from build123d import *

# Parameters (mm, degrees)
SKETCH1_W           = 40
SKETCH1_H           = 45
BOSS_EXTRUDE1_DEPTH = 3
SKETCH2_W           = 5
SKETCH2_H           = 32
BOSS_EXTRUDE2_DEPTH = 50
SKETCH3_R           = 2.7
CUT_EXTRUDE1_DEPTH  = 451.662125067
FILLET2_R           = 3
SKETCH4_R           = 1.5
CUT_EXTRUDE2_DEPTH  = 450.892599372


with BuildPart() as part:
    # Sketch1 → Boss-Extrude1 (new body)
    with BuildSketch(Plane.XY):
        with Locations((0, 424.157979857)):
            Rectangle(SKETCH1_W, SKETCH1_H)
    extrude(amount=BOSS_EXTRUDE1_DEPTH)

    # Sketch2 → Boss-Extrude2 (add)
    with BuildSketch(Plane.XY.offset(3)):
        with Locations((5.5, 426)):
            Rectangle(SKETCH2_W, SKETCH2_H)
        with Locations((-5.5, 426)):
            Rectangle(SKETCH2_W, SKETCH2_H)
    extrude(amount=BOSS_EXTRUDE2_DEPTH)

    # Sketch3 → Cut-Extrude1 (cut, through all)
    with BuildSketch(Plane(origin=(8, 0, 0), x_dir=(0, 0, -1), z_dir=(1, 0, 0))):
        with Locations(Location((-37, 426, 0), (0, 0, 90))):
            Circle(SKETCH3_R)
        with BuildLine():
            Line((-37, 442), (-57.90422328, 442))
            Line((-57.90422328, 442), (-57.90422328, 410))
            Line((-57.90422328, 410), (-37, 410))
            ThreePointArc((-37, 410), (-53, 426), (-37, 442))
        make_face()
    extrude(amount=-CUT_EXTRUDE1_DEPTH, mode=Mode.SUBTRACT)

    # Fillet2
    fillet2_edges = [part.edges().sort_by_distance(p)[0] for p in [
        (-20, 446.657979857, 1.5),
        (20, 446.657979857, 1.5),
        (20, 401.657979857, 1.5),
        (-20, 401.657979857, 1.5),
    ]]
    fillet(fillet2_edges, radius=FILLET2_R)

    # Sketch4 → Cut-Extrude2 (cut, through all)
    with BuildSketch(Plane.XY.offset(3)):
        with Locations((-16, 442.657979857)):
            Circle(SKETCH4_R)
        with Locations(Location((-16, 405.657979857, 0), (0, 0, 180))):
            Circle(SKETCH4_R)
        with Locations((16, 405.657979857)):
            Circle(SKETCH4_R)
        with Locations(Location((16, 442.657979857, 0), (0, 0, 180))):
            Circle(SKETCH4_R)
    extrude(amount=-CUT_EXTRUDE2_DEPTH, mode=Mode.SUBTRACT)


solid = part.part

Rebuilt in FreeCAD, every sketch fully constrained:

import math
import FreeCAD as App
import Part
import Sketcher
from FreeCAD import Vector


def edges_at(feature, points):
    """Names of the edges that pass closest to the given points."""
    edges = feature.Shape.Edges
    near = lambda p: min(range(len(edges)), key=lambda i: edges[i].distToShape(Part.Vertex(*p))[0])
    return sorted({f"Edge{near(p) + 1}" for p in points})


def add_polygon(sketch, points):
    """Adds a closed chain of lines whose ends are joined by coincident constraints."""
    first, n = sketch.GeometryCount, len(points)
    for a, b in zip(points, points[1:] + points[:1]):
        sketch.addGeometry(Part.LineSegment(App.Vector(*a, 0), App.Vector(*b, 0)), False)
    for i in range(n):
        sketch.addConstraint(Sketcher.Constraint("Coincident", first + i, 2, first + (i + 1) % n, 1))

doc = App.newDocument("Part")
body = doc.addObject("PartDesign::Body", "Body")

# Sketch on XY plane
sketch1 = body.newObject("Sketcher::SketchObject", "Sketch")
sketch1.AttachmentSupport = (doc.getObject("XY_Plane"), [""])
sketch1.MapMode = "FlatFace"
add_polygon(sketch1, [(-20, 447), (-20, 402), (20, 402), (20, 447)])  # lines 0-3
sketch1.addConstraint(Sketcher.Constraint("Vertical", 0))
sketch1.addConstraint(Sketcher.Constraint("Horizontal", 1))
sketch1.addConstraint(Sketcher.Constraint("Vertical", 2))
sketch1.addConstraint(Sketcher.Constraint("Horizontal", 3))
sketch1.addConstraint(Sketcher.Constraint("DistanceX", 1, 1, 1, 2, 40.0))
sketch1.addConstraint(Sketcher.Constraint("DistanceY", 0, 2, 0, 1, 45.0))
sketch1.addConstraint(Sketcher.Constraint("DistanceX", 0, 2, -1, 1, 20.0))
sketch1.addConstraint(Sketcher.Constraint("DistanceY", -1, 1, 0, 2, 401.65798))
pad1 = body.newObject("PartDesign::Pad", "Pad")
pad1.Profile = sketch1
pad1.Length = 3

# Sketch on XY plane
sketch2 = body.newObject("Sketcher::SketchObject", "Sketch001")
sketch2.AttachmentSupport = (doc.getObject("XY_Plane"), [""])
sketch2.MapMode = "FlatFace"
sketch2.AttachmentOffset = App.Placement(Vector(0, 0, 3), App.Rotation())
add_polygon(sketch2, [(3, 442), (3, 410), (8, 410), (8, 442)])  # lines 0-3
add_polygon(sketch2, [(-8, 442), (-8, 410), (-3, 410), (-3, 442)])  # lines 4-7
sketch2.addConstraint(Sketcher.Constraint("Vertical", 0))
sketch2.addConstraint(Sketcher.Constraint("Horizontal", 1))
sketch2.addConstraint(Sketcher.Constraint("Vertical", 2))
sketch2.addConstraint(Sketcher.Constraint("Horizontal", 3))
sketch2.addConstraint(Sketcher.Constraint("Vertical", 4))
sketch2.addConstraint(Sketcher.Constraint("Horizontal", 5))
sketch2.addConstraint(Sketcher.Constraint("Vertical", 6))
sketch2.addConstraint(Sketcher.Constraint("Horizontal", 7))
sketch2.addConstraint(Sketcher.Constraint("Symmetric", 1, 2, 4, 2, -2))
sketch2.addConstraint(Sketcher.Constraint("Symmetric", 3, 2, 6, 2, -2))
sketch2.addConstraint(Sketcher.Constraint("DistanceX", 1, 1, 1, 2, 5.0))
sketch2.addConstraint(Sketcher.Constraint("DistanceY", 0, 2, 0, 1, 32.0))
sketch2.addConstraint(Sketcher.Constraint("DistanceX", -1, 1, 0, 2, 3.0))
sketch2.addConstraint(Sketcher.Constraint("DistanceY", -1, 1, 0, 2, 410.0))
pad2 = body.newObject("PartDesign::Pad", "Pad001")
pad2.Profile = sketch2
pad2.Length = 50

# Sketch on YZ plane
sketch3 = body.newObject("Sketcher::SketchObject", "Sketch002")
sketch3.AttachmentSupport = (doc.getObject("YZ_Plane"), [""])
sketch3.MapMode = "FlatFace"
sketch3.AttachmentOffset = App.Placement(Vector(0, 0, 8), App.Rotation())
sketch3.addGeometry(Part.Circle(Vector(426, 37, 0), Vector(0, 0, 1), 2.7), False)
sketch3.addGeometry(Part.LineSegment(Vector(442, 37, 0), Vector(442, 57.9, 0)), False)
sketch3.addGeometry(Part.LineSegment(Vector(442, 57.9, 0), Vector(410, 57.9, 0)), False)
sketch3.addGeometry(Part.LineSegment(Vector(410, 57.9, 0), Vector(410, 37, 0)), False)
sketch3.addGeometry(Part.ArcOfCircle(Part.Circle(Vector(426, 37, 0), Vector(0, 0, 1), 16), math.radians(0), math.radians(180)), False)
sketch3.addConstraint(Sketcher.Constraint("Coincident", 1, 2, 2, 1))
sketch3.addConstraint(Sketcher.Constraint("Coincident", 2, 2, 3, 1))
sketch3.addConstraint(Sketcher.Constraint("Tangent", 3, 2, 4, 2))
sketch3.addConstraint(Sketcher.Constraint("Tangent", 4, 1, 1, 1))
sketch3.addConstraint(Sketcher.Constraint("Vertical", 1))
sketch3.addConstraint(Sketcher.Constraint("Horizontal", 2))
sketch3.addConstraint(Sketcher.Constraint("Vertical", 3))
sketch3.addConstraint(Sketcher.Constraint("Coincident", 4, 3, 0, 3))
sketch3.addConstraint(Sketcher.Constraint("Radius", 4, 16.0))
sketch3.addConstraint(Sketcher.Constraint("Diameter", 0, 5.4))
sketch3.addConstraint(Sketcher.Constraint("DistanceX", -1, 1, 0, 3, 426.0))
sketch3.addConstraint(Sketcher.Constraint("DistanceY", -1, 1, 0, 3, 37.0))
sketch3.addConstraint(Sketcher.Constraint("DistanceY", 1, 1, 1, 2, 20.904223))
pocket1 = body.newObject("PartDesign::Pocket", "Pocket")
pocket1.Profile = sketch3
pocket1.Type = "ThroughAll"
doc.recompute()

fillet = body.newObject("PartDesign::Fillet", "Fillet")
fillet.Base = (pocket1, edges_at(pocket1, [
    (-20, 446.658, 1.5),
    (20, 446.658, 1.5),
    (20, 401.658, 1.5),
    (-20, 401.658, 1.5),
]))
fillet.Radius = 3

# Sketch on XY plane
sketch4 = body.newObject("Sketcher::SketchObject", "Sketch003")
sketch4.AttachmentSupport = (doc.getObject("XY_Plane"), [""])
sketch4.MapMode = "FlatFace"
sketch4.AttachmentOffset = App.Placement(Vector(0, 0, 3), App.Rotation())
sketch4.addGeometry(Part.Circle(Vector(-16, 442.7, 0), Vector(0, 0, 1), 1.5), False)
sketch4.addGeometry(Part.Circle(Vector(-16, 405.7, 0), Vector(0, 0, 1), 1.5), False)
sketch4.addGeometry(Part.Circle(Vector(16, 405.7, 0), Vector(0, 0, 1), 1.5), False)
sketch4.addGeometry(Part.Circle(Vector(16, 442.7, 0), Vector(0, 0, 1), 1.5), False)
sketch4.addConstraint(Sketcher.Constraint("Equal", 0, 1))
sketch4.addConstraint(Sketcher.Constraint("Equal", 1, 2))
sketch4.addConstraint(Sketcher.Constraint("Equal", 2, 3))
sketch4.addConstraint(Sketcher.Constraint("Symmetric", 1, 3, 2, 3, -2))
sketch4.addConstraint(Sketcher.Constraint("Symmetric", 0, 3, 3, 3, -2))
sketch4.addConstraint(Sketcher.Constraint("Vertical", 0, 3, 1, 3))
sketch4.addConstraint(Sketcher.Constraint("Diameter", 0, 3.0))
sketch4.addConstraint(Sketcher.Constraint("DistanceX", 0, 3, -1, 1, 16.0))
sketch4.addConstraint(Sketcher.Constraint("DistanceY", 1, 3, 0, 3, 37.0))
sketch4.addConstraint(Sketcher.Constraint("DistanceY", -1, 1, 0, 3, 442.65798))
pocket2 = body.newObject("PartDesign::Pocket", "Pocket001")
pocket2.Profile = sketch4
pocket2.Type = "ThroughAll"

doc.recompute()
